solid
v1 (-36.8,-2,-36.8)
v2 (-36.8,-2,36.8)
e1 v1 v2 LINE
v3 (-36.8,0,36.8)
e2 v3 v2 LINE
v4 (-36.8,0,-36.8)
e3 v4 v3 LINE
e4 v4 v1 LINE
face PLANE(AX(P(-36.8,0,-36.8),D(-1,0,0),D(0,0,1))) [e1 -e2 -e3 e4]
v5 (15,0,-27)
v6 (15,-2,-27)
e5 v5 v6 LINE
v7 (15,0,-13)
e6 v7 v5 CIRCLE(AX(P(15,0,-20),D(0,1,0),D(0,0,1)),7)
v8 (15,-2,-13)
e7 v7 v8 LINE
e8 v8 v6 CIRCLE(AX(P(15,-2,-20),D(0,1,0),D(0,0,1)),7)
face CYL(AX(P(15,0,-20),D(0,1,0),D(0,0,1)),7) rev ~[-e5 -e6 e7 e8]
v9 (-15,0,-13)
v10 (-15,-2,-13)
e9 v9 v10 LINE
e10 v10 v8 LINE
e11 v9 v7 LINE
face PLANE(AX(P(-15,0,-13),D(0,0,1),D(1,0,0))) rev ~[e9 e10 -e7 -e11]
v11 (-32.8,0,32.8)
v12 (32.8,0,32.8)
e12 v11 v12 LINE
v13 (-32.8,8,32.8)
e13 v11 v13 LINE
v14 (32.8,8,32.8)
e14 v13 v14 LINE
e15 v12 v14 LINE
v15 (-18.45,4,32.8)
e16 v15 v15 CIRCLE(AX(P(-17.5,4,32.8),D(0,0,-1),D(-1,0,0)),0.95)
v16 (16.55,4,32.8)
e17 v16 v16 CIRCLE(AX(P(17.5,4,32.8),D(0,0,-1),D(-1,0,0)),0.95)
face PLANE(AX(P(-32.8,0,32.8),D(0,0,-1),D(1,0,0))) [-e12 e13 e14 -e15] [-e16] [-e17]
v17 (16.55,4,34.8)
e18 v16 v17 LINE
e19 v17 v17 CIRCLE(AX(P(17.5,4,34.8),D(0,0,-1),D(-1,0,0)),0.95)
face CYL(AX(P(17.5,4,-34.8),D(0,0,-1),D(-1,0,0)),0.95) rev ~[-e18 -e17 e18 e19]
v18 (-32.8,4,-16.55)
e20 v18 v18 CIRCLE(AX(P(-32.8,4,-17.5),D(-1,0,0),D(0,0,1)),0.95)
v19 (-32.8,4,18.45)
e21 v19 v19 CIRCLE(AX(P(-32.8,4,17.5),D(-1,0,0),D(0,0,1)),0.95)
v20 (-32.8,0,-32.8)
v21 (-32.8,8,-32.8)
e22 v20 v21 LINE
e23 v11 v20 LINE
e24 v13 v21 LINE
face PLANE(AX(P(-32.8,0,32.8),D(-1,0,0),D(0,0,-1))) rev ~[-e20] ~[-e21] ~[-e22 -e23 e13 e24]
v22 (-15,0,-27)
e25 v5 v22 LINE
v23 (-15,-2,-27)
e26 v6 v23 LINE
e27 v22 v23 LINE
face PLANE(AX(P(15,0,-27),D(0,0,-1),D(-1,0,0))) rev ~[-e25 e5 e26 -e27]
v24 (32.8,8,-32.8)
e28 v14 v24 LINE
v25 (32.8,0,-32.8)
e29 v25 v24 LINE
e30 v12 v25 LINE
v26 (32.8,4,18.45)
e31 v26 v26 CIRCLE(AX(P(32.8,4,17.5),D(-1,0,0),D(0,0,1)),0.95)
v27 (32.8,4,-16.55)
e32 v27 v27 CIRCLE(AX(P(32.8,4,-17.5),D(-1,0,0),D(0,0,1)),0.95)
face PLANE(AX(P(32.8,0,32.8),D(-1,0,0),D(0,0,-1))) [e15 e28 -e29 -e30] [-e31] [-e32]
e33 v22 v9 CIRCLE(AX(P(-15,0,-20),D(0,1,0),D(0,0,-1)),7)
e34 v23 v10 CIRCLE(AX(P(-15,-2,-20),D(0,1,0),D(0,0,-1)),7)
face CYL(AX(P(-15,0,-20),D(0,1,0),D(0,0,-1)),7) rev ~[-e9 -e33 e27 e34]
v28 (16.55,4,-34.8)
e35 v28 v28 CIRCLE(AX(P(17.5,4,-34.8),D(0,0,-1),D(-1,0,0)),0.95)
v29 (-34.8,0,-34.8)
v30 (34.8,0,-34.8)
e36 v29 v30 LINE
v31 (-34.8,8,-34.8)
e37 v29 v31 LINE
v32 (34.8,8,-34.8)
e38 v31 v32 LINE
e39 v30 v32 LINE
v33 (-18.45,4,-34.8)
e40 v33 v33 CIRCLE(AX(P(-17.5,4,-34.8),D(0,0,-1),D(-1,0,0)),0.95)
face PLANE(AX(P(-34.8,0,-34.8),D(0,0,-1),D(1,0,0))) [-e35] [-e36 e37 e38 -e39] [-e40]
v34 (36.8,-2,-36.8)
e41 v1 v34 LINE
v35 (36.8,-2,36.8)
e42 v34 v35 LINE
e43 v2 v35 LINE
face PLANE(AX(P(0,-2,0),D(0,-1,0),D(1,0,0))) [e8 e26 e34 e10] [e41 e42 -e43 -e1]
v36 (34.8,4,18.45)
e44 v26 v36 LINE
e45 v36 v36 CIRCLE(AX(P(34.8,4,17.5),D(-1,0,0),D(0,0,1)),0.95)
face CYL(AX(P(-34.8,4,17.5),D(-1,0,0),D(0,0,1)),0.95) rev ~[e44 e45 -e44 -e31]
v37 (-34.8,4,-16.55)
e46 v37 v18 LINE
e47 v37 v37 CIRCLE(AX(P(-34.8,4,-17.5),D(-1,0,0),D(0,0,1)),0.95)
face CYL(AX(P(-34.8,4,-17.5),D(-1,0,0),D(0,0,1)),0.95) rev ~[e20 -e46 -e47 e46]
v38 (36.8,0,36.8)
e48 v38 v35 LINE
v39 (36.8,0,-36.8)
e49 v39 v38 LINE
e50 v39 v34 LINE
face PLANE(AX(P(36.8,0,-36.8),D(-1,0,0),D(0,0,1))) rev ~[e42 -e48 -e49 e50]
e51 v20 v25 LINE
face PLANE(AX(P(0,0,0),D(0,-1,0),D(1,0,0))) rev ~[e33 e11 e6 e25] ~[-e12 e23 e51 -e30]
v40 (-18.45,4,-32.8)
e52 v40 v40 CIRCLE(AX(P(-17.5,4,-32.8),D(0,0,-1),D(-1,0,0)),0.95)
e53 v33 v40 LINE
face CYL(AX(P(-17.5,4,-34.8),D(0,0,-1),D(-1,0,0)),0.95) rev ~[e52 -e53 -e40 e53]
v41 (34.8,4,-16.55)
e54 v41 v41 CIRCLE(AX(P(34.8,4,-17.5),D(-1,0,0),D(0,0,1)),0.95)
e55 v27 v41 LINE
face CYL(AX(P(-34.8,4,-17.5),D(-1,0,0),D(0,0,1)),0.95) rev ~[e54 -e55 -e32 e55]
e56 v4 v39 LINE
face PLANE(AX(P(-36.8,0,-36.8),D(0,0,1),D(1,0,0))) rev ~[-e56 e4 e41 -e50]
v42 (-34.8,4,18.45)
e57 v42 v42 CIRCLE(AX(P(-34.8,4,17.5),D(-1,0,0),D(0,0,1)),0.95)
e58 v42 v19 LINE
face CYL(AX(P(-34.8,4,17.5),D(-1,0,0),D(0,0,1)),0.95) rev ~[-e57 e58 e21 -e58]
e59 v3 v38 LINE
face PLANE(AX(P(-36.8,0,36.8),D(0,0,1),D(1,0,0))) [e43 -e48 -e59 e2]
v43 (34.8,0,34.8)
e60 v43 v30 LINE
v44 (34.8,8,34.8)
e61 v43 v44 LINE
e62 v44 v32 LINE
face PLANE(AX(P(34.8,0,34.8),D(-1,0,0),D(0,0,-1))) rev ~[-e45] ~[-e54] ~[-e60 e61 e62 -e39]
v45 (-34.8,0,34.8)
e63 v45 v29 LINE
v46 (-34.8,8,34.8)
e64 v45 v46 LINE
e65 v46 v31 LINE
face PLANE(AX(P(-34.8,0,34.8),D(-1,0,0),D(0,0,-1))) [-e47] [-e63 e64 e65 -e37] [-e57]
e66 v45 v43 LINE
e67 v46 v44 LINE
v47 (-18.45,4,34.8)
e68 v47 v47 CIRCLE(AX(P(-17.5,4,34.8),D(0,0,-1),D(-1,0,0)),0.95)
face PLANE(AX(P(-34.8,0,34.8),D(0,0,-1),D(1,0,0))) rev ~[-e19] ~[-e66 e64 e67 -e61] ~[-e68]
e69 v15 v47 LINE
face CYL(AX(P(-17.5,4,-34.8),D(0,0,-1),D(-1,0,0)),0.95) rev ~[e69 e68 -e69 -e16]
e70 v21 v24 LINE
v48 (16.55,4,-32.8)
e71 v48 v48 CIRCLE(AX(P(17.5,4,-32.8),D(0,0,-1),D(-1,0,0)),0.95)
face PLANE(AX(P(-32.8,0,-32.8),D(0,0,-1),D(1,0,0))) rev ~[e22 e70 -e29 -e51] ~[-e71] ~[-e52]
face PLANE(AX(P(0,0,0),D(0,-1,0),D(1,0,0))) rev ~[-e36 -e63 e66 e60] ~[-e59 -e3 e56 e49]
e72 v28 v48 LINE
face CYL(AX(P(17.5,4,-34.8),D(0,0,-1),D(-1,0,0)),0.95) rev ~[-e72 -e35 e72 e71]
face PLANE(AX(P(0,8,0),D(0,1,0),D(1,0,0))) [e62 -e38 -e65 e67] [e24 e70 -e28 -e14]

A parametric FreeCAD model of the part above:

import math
import FreeCAD as App
import Part
import Sketcher
from FreeCAD import Vector
Q = App.Units.Quantity


def add_polygon(sketch, points):
    """Adds a closed chain of lines whose ends are joined by coincident constraints."""
    first, n = sketch.GeometryCount, len(points)
    for a, b in zip(points, points[1:] + points[:1]):
        sketch.addGeometry(Part.LineSegment(App.Vector(*a, 0), App.Vector(*b, 0)), False)
    for i in range(n):
        sketch.addConstraint(Sketcher.Constraint("Coincident", first + i, 2, first + (i + 1) % n, 1))

doc = App.newDocument("Part")
params = doc.addObject("Spreadsheet::Sheet", "Params")
for row, (alias, value) in enumerate([
    ("sketch1_width", "69.6 mm"),
    ("sketch1_width2", "65.6 mm"),
    ("pad1_length", "8 mm"),
    ("sketch2_radius", "7 mm"),
    ("sketch2_width", "30 mm"),
    ("sketch2_width2", "73.6 mm"),
    ("pad2_length", "2 mm"),
    ("sketch3_diameter", "1.9 mm"),
    ("sketch4_diameter", "1.9 mm"),
], start=1):
    params.set(f"A{row}", alias)
    params.set(f"B{row}", "=" + value)
    params.setAlias(f"B{row}", alias)

body = doc.addObject("PartDesign::Body", "Body")

# Sketch on XZ plane
sketch1 = body.newObject("Sketcher::SketchObject", "Sketch")
sketch1.AttachmentSupport = (doc.getObject("XZ_Plane"), [""])
sketch1.MapMode = "FlatFace"
add_polygon(sketch1, [(-35, -35), (-35, 35), (35, 35), (35, -35)])  # lines 0-3
add_polygon(sketch1, [(33, 33), (-33, 33), (-33, -33), (33, -33)])  # lines 4-7
sketch1.addConstraint([
    Sketcher.Constraint("Vertical", 0),
    Sketcher.Constraint("Horizontal", 1),
    Sketcher.Constraint("Vertical", 2),
    Sketcher.Constraint("Horizontal", 3),
    Sketcher.Constraint("Horizontal", 4),
    Sketcher.Constraint("Vertical", 5),
    Sketcher.Constraint("Horizontal", 6),
    Sketcher.Constraint("Vertical", 7),
    Sketcher.Constraint("Symmetric", 0, 2, 2, 2, -1, 1),
    Sketcher.Constraint("Symmetric", 4, 2, 6, 2, -1, 1),
    Sketcher.Constraint("Equal", 3, 0),
    Sketcher.Constraint("Equal", 6, 5),
    Sketcher.Constraint("DistanceX", 1, 1, 1, 2, Q("69.6 mm")),
    Sketcher.Constraint("DistanceX", 4, 2, 4, 1, Q("65.6 mm")),
])
sketch1.setExpression("Constraints[20]", "Params.sketch1_width")
sketch1.setExpression("Constraints[21]", "Params.sketch1_width2")
pad1 = body.newObject("PartDesign::Pad", "Pad")
pad1.Profile = sketch1
pad1.setExpression("Length", "Params.pad1_length")
pad1.Reversed = True

# Sketch on XZ plane
sketch2 = body.newObject("Sketcher::SketchObject", "Sketch001")
sketch2.AttachmentSupport = (doc.getObject("XZ_Plane"), [""])
sketch2.MapMode = "FlatFace"
add_polygon(sketch2, [(-37, 37), (-37, -37), (37, -37), (37, 37)])  # lines 0-3
sketch2.addGeometry(Part.ArcOfCircle(Part.Circle(Vector(-15, -20, 0), Vector(0, 0, 1), 7), math.radians(90), math.radians(270)), False)  # 4
sketch2.addGeometry(Part.LineSegment(Vector(-15, -13, 0), Vector(15, -13, 0)), False)  # 5
sketch2.addGeometry(Part.ArcOfCircle(Part.Circle(Vector(15, -20, 0), Vector(0, 0, 1), 7), math.radians(-90), math.radians(90)), False)  # 6
sketch2.addGeometry(Part.LineSegment(Vector(15, -27, 0), Vector(-15, -27, 0)), False)  # 7
sketch2.addConstraint([
    Sketcher.Constraint("Tangent", 4, 1, 5, 1),
    Sketcher.Constraint("Tangent", 5, 2, 6, 2),
    Sketcher.Constraint("Tangent", 6, 1, 7, 1),
    Sketcher.Constraint("Tangent", 7, 2, 4, 2),
    Sketcher.Constraint("Vertical", 0),
    Sketcher.Constraint("Horizontal", 1),
    Sketcher.Constraint("Vertical", 2),
    Sketcher.Constraint("Horizontal", 3),
    Sketcher.Constraint("Horizontal", 5),
    Sketcher.Constraint("Horizontal", 7),
    Sketcher.Constraint("Symmetric", 0, 2, 2, 2, -1, 1),
    Sketcher.Constraint("Equal", 3, 0),
    Sketcher.Constraint("Radius", 4, Q("7 mm")),
    Sketcher.Constraint("DistanceX", 5, 1, 5, 2, Q("30 mm")),
    Sketcher.Constraint("DistanceX", 1, 1, 1, 2, Q("73.6 mm")),
    Sketcher.Constraint("DistanceX", 4, 3, -1, 1, Q("15 mm")),
    Sketcher.Constraint("DistanceY", 4, 3, -1, 1, Q("20 mm")),
])
sketch2.setExpression("Constraints[16]", "Params.sketch2_radius")
sketch2.setExpression("Constraints[17]", "Params.sketch2_width")
sketch2.setExpression("Constraints[18]", "Params.sketch2_width2")
pad2 = body.newObject("PartDesign::Pad", "Pad001")
pad2.Profile = sketch2
pad2.setExpression("Length", "Params.pad2_length")

# Sketch on YZ plane
sketch3 = body.newObject("Sketcher::SketchObject", "Sketch002")
sketch3.AttachmentSupport = (doc.getObject("YZ_Plane"), [""])
sketch3.MapMode = "FlatFace"
sketch3.AttachmentOffset = App.Placement(Vector(0, 0, -34.8), App.Rotation())
sketch3.addGeometry([
    Part.Circle(Vector(4, 17.5, 0), Vector(0, 0, 1), 0.9),
    Part.Circle(Vector(4, -17.5, 0), Vector(0, 0, 1), 0.9),
], False)
sketch3.addConstraint([
    Sketcher.Constraint("Equal", 0, 1),
    Sketcher.Constraint("Symmetric", 0, 3, 1, 3, -1),
    Sketcher.Constraint("Diameter", 0, Q("1.9 mm")),
    Sketcher.Constraint("DistanceX", -1, 1, 0, 3, Q("4 mm")),
    Sketcher.Constraint("DistanceY", 1, 3, 0, 3, Q("35 mm")),
])
sketch3.setExpression("Constraints[2]", "Params.sketch3_diameter")
pocket1 = body.newObject("PartDesign::Pocket", "Pocket")
pocket1.Profile = sketch3
pocket1.Type = "ThroughAll"
pocket1.Reversed = True

# Sketch on XY plane
sketch4 = body.newObject("Sketcher::SketchObject", "Sketch003")
sketch4.AttachmentSupport = (doc.getObject("XY_Plane"), [""])
sketch4.MapMode = "FlatFace"
sketch4.AttachmentOffset = App.Placement(Vector(0, 0, -34.8), App.Rotation())
sketch4.addGeometry([
    Part.Circle(Vector(-17.5, 4, 0), Vector(0, 0, 1), 0.9),
    Part.Circle(Vector(17.5, 4, 0), Vector(0, 0, 1), 0.9),
], False)
sketch4.addConstraint([
    Sketcher.Constraint("Equal", 0, 1),
    Sketcher.Constraint("Symmetric", 0, 3, 1, 3, -2),
    Sketcher.Constraint("Diameter", 0, Q("1.9 mm")),
    Sketcher.Constraint("DistanceY", -1, 1, 0, 3, Q("4 mm")),
    Sketcher.Constraint("DistanceX", 0, 3, 1, 3, Q("35 mm")),
])
sketch4.setExpression("Constraints[2]", "Params.sketch4_diameter")
pocket2 = body.newObject("PartDesign::Pocket", "Pocket001")
pocket2.Profile = sketch4
pocket2.Type = "ThroughAll"
pocket2.Reversed = True

doc.recompute()
